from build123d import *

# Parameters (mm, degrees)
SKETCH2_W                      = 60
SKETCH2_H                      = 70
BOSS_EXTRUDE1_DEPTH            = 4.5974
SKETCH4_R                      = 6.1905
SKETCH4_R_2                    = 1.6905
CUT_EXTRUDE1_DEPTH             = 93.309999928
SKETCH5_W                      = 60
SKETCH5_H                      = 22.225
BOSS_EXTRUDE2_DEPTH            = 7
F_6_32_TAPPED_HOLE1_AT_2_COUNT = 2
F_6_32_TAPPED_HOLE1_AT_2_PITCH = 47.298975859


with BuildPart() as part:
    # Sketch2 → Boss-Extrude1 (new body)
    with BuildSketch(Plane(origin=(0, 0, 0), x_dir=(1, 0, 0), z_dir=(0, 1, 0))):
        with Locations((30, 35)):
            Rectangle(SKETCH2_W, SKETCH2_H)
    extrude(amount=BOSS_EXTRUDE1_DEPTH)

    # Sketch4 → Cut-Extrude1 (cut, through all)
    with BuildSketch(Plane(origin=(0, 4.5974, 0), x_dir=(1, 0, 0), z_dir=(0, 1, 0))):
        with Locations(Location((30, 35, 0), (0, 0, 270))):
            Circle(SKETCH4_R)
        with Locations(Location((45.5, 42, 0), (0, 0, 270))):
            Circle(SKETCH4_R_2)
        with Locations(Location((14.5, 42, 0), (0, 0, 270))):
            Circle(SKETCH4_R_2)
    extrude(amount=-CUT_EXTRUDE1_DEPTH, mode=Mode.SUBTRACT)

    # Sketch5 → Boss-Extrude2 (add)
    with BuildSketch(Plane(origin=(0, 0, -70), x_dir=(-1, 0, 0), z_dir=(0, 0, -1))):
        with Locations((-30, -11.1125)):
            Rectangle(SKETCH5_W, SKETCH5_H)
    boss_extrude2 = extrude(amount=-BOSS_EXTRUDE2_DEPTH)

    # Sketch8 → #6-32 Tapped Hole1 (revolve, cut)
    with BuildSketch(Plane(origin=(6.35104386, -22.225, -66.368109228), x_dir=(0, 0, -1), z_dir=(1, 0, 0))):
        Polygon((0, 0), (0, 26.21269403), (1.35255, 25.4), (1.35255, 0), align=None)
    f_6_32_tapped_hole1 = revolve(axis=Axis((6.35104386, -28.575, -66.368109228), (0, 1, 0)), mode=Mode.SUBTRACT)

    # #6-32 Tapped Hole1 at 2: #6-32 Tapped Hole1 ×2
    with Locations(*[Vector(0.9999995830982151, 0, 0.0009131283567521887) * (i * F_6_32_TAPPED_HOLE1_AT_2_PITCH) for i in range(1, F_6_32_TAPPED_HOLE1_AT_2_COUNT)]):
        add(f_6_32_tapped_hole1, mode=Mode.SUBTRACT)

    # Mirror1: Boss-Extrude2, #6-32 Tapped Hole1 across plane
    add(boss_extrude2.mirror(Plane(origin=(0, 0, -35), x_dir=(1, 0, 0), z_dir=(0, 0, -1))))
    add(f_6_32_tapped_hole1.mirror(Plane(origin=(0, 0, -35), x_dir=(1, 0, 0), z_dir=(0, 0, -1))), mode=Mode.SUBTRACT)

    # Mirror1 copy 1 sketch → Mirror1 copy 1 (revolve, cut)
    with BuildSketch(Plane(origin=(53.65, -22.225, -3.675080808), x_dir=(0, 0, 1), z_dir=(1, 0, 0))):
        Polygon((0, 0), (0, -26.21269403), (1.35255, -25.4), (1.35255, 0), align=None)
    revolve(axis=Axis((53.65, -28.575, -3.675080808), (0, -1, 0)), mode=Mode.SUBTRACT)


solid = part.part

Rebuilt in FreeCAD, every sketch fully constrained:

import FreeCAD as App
import Part
import Sketcher

V = App.Vector
Q = App.Units.Quantity

doc = App.newDocument("Part")
body = doc.addObject("PartDesign::Body", "Body")

# Sketch on XZ plane
sketch1 = body.newObject("Sketcher::SketchObject", "Sketch")
sketch1.AttachmentSupport = (doc.getObject("XZ_Plane"), [""])
sketch1.MapMode = "FlatFace"
sketch1.addGeometry(Part.LineSegment(V(0, -70, 0), V(0, 0, 0)), False)
sketch1.addGeometry(Part.LineSegment(V(0, 0, 0), V(60, 0, 0)), False)
sketch1.addGeometry(Part.LineSegment(V(60, 0, 0), V(60, -70, 0)), False)
sketch1.addGeometry(Part.LineSegment(V(60, -70, 0), V(0, -70, 0)), False)
sketch1.addConstraint(Sketcher.Constraint("Coincident", 0, 2, 1, 1))
sketch1.addConstraint(Sketcher.Constraint("Coincident", 1, 2, 2, 1))
sketch1.addConstraint(Sketcher.Constraint("Coincident", 2, 2, 3, 1))
sketch1.addConstraint(Sketcher.Constraint("Coincident", 3, 2, 0, 1))
sketch1.addConstraint(Sketcher.Constraint("Vertical", 0))
sketch1.addConstraint(Sketcher.Constraint("Horizontal", 1))
sketch1.addConstraint(Sketcher.Constraint("Vertical", 2))
sketch1.addConstraint(Sketcher.Constraint("Horizontal", 3))
sketch1.addConstraint(Sketcher.Constraint("Coincident", 0, 2, -1, 1))
sketch1.addConstraint(Sketcher.Constraint("DistanceX", 1, 1, 1, 2, 60.0))
sketch1.addConstraint(Sketcher.Constraint("DistanceY", 0, 1, 0, 2, 70.0))
pad1 = body.newObject("PartDesign::Pad", "Pad")
pad1.Profile = sketch1
pad1.Length = 4.5974
pad1.Reversed = True

# Sketch on XZ plane
sketch2 = body.newObject("Sketcher::SketchObject", "Sketch001")
sketch2.AttachmentSupport = (doc.getObject("XZ_Plane"), [""])
sketch2.MapMode = "FlatFace"
sketch2.AttachmentOffset = App.Placement(V(0, 0, -4.5974), App.Rotation())
sketch2.addGeometry(Part.Circle(V(30, -35, 0), V(0, 0, 1), 6.2), False)
sketch2.addGeometry(Part.Circle(V(45.5, -42, 0), V(0, 0, 1), 1.7), False)
sketch2.addGeometry(Part.Circle(V(14.5, -42, 0), V(0, 0, 1), 1.7), False)
sketch2.addConstraint(Sketcher.Constraint("Equal", 1, 2))
sketch2.addConstraint(Sketcher.Constraint("Horizontal", 1, 3, 2, 3))
sketch2.addConstraint(Sketcher.Constraint("Diameter", 0, 12.381))
sketch2.addConstraint(Sketcher.Constraint("Diameter", 1, 3.381))
sketch2.addConstraint(Sketcher.Constraint("DistanceX", -1, 1, 0, 3, 30.0))
sketch2.addConstraint(Sketcher.Constraint("DistanceY", 0, 3, -1, 1, 35.0))
sketch2.addConstraint(Sketcher.Constraint("DistanceY", 1, 3, -1, 1, 42.0))
sketch2.addConstraint(Sketcher.Constraint("DistanceX", 2, 3, 1, 3, 31.0))
sketch2.addConstraint(Sketcher.Constraint("DistanceX", -1, 1, 1, 3, 45.5))
pocket1 = body.newObject("PartDesign::Pocket", "Pocket")
pocket1.Profile = sketch2
pocket1.Type = "ThroughAll"
pocket1.Reversed = True

# Sketch on XY plane
sketch3 = body.newObject("Sketcher::SketchObject", "Sketch002")
sketch3.AttachmentSupport = (doc.getObject("XY_Plane"), [""])
sketch3.MapMode = "FlatFace"
sketch3.AttachmentOffset = App.Placement(V(0, 0, -70), App.Rotation())
sketch3.addGeometry(Part.LineSegment(V(60, 0, 0), V(60, -22, 0)), False)
sketch3.addGeometry(Part.LineSegment(V(60, -22, 0), V(0, -22, 0)), False)
sketch3.addGeometry(Part.LineSegment(V(0, -22, 0), V(0, 0, 0)), False)
sketch3.addGeometry(Part.LineSegment(V(0, 0, 0), V(60, 0, 0)), False)
sketch3.addConstraint(Sketcher.Constraint("Coincident", 0, 2, 1, 1))
sketch3.addConstraint(Sketcher.Constraint("Coincident", 1, 2, 2, 1))
sketch3.addConstraint(Sketcher.Constraint("Coincident", 2, 2, 3, 1))
sketch3.addConstraint(Sketcher.Constraint("Coincident", 3, 2, 0, 1))
sketch3.addConstraint(Sketcher.Constraint("Vertical", 0))
sketch3.addConstraint(Sketcher.Constraint("Horizontal", 1))
sketch3.addConstraint(Sketcher.Constraint("Vertical", 2))
sketch3.addConstraint(Sketcher.Constraint("Horizontal", 3))
sketch3.addConstraint(Sketcher.Constraint("Coincident", 2, 2, -1, 1))
sketch3.addConstraint(Sketcher.Constraint("DistanceX", 1, 2, 1, 1, 60.0))
sketch3.addConstraint(Sketcher.Constraint("DistanceY", 0, 2, 0, 1, 22.225))
pad2 = body.newObject("PartDesign::Pad", "Pad001")
pad2.Profile = sketch3
pad2.Length = 7

# Sketch on YZ plane
sketch4 = body.newObject("Sketcher::SketchObject", "Sketch003")
sketch4.AttachmentSupport = (doc.getObject("YZ_Plane"), [""])
sketch4.MapMode = "FlatFace"
sketch4.AttachmentOffset = App.Placement(V(0, 0, 6.351044), App.Rotation())
sketch4.addGeometry(Part.LineSegment(V(4, -66.4, 0), V(-22.2, -66.4, 0)), False)
sketch4.addGeometry(Part.LineSegment(V(-22.2, -66.4, 0), V(-22.2, -67.7, 0)), False)
sketch4.addGeometry(Part.LineSegment(V(-22.2, -67.7, 0), V(3.2, -67.7, 0)), False)
sketch4.addGeometry(Part.LineSegment(V(3.2, -67.7, 0), V(4, -66.4, 0)), False)
sketch4.addGeometry(Part.LineSegment(V(-22.2, -66.4, 0), V(4, -66.4, 0)), True)  # axis
sketch4.addConstraint(Sketcher.Constraint("Coincident", 0, 2, 1, 1))
sketch4.addConstraint(Sketcher.Constraint("Coincident", 1, 2, 2, 1))
sketch4.addConstraint(Sketcher.Constraint("Coincident", 2, 2, 3, 1))
sketch4.addConstraint(Sketcher.Constraint("Coincident", 3, 2, 0, 1))
sketch4.addConstraint(Sketcher.Constraint("Horizontal", 0))
sketch4.addConstraint(Sketcher.Constraint("Vertical", 1))
sketch4.addConstraint(Sketcher.Constraint("Horizontal", 2))
sketch4.addConstraint(Sketcher.Constraint("Horizontal", 4))
sketch4.addConstraint(Sketcher.Constraint("Coincident", 4, 1, 0, 2))
sketch4.addConstraint(Sketcher.Constraint("Equal", 0, 4))
sketch4.addConstraint(Sketcher.Constraint("Angle", 3, Q("59 deg")))
sketch4.addConstraint(Sketcher.Constraint("DistanceX", 2, 1, 2, 2, 25.4))
sketch4.addConstraint(Sketcher.Constraint("DistanceX", 0, 2, -1, 1, 22.225))
sketch4.addConstraint(Sketcher.Constraint("DistanceY", 1, 2, 1, 1, 1.35255))
sketch4.addConstraint(Sketcher.Constraint("DistanceY", 0, 2, -1, 1, 66.368109))
groove = body.newObject("PartDesign::Groove", "Groove")
groove.Profile = sketch4
groove.ReferenceAxis = (sketch4, ["Axis0"])
groove.Angle = 360
doc.recompute()

datumline = body.newObject("PartDesign::Line", "DatumLine")
datumline.Placement = App.Placement(V(0, 0, 0), App.Rotation(V(0, 0, 1), V(0.999999583, 0, 0.000913128)))
linearpattern = body.newObject("PartDesign::LinearPattern", "LinearPattern")
linearpattern.Originals = [groove]
linearpattern.Direction = (datumline, [""])
linearpattern.Mode = "offset"
linearpattern.Offset = 47.298976
linearpattern.Occurrences = 2
body.Tip = linearpattern
doc.recompute()

datumplane = body.newObject("PartDesign::Plane", "DatumPlane")
datumplane.AttachmentSupport = (doc.getObject("XY_Plane"), [""])
datumplane.MapMode = "FlatFace"
datumplane.AttachmentOffset = App.Placement(V(0, 0, -35), App.Rotation())
mirrored = body.newObject("PartDesign::Mirrored", "Mirrored")
mirrored.Originals = [pad2, groove]
mirrored.MirrorPlane = (datumplane, [""])
body.Tip = mirrored

# Sketch on YZ plane
sketch5 = body.newObject("Sketcher::SketchObject", "Sketch004")
sketch5.AttachmentSupport = (doc.getObject("YZ_Plane"), [""])
sketch5.MapMode = "FlatFace"
sketch5.AttachmentOffset = App.Placement(V(0, 0, 53.65), App.Rotation())
sketch5.addGeometry(Part.LineSegment(V(-22.2, -3.7, 0), V(4, -3.7, 0)), False)
sketch5.addGeometry(Part.LineSegment(V(4, -3.7, 0), V(3.2, -2.3, 0)), False)
sketch5.addGeometry(Part.LineSegment(V(3.2, -2.3, 0), V(-22.2, -2.3, 0)), False)
sketch5.addGeometry(Part.LineSegment(V(-22.2, -2.3, 0), V(-22.2, -3.7, 0)), False)
sketch5.addGeometry(Part.LineSegment(V(4, -3.7, 0), V(-22.2, -3.7, 0)), True)  # axis
sketch5.addConstraint(Sketcher.Constraint("Coincident", 0, 2, 1, 1))
sketch5.addConstraint(Sketcher.Constraint("Coincident", 1, 2, 2, 1))
sketch5.addConstraint(Sketcher.Constraint("Coincident", 2, 2, 3, 1))
sketch5.addConstraint(Sketcher.Constraint("Coincident", 3, 2, 0, 1))
sketch5.addConstraint(Sketcher.Constraint("Horizontal", 0))
sketch5.addConstraint(Sketcher.Constraint("Horizontal", 2))
sketch5.addConstraint(Sketcher.Constraint("Vertical", 3))
sketch5.addConstraint(Sketcher.Constraint("Horizontal", 4))
sketch5.addConstraint(Sketcher.Constraint("Coincident", 4, 1, 0, 2))
sketch5.addConstraint(Sketcher.Constraint("Vertical", 2, 2, 4, 2))
sketch5.addConstraint(Sketcher.Constraint("Angle", 1, Q("121 deg")))
sketch5.addConstraint(Sketcher.Constraint("DistanceX", 2, 2, 2, 1, 25.4))
sketch5.addConstraint(Sketcher.Constraint("DistanceX", -1, 1, 1, 2, 3.175))
sketch5.addConstraint(Sketcher.Constraint("DistanceY", 3, 2, 3, 1, 1.35255))
sketch5.addConstraint(Sketcher.Constraint("DistanceY", 0, 2, -1, 1, 3.675081))
groove2 = body.newObject("PartDesign::Groove", "Groove001")
groove2.Profile = sketch5
groove2.ReferenceAxis = (sketch5, ["Axis0"])
groove2.Angle = 360

doc.recompute()
